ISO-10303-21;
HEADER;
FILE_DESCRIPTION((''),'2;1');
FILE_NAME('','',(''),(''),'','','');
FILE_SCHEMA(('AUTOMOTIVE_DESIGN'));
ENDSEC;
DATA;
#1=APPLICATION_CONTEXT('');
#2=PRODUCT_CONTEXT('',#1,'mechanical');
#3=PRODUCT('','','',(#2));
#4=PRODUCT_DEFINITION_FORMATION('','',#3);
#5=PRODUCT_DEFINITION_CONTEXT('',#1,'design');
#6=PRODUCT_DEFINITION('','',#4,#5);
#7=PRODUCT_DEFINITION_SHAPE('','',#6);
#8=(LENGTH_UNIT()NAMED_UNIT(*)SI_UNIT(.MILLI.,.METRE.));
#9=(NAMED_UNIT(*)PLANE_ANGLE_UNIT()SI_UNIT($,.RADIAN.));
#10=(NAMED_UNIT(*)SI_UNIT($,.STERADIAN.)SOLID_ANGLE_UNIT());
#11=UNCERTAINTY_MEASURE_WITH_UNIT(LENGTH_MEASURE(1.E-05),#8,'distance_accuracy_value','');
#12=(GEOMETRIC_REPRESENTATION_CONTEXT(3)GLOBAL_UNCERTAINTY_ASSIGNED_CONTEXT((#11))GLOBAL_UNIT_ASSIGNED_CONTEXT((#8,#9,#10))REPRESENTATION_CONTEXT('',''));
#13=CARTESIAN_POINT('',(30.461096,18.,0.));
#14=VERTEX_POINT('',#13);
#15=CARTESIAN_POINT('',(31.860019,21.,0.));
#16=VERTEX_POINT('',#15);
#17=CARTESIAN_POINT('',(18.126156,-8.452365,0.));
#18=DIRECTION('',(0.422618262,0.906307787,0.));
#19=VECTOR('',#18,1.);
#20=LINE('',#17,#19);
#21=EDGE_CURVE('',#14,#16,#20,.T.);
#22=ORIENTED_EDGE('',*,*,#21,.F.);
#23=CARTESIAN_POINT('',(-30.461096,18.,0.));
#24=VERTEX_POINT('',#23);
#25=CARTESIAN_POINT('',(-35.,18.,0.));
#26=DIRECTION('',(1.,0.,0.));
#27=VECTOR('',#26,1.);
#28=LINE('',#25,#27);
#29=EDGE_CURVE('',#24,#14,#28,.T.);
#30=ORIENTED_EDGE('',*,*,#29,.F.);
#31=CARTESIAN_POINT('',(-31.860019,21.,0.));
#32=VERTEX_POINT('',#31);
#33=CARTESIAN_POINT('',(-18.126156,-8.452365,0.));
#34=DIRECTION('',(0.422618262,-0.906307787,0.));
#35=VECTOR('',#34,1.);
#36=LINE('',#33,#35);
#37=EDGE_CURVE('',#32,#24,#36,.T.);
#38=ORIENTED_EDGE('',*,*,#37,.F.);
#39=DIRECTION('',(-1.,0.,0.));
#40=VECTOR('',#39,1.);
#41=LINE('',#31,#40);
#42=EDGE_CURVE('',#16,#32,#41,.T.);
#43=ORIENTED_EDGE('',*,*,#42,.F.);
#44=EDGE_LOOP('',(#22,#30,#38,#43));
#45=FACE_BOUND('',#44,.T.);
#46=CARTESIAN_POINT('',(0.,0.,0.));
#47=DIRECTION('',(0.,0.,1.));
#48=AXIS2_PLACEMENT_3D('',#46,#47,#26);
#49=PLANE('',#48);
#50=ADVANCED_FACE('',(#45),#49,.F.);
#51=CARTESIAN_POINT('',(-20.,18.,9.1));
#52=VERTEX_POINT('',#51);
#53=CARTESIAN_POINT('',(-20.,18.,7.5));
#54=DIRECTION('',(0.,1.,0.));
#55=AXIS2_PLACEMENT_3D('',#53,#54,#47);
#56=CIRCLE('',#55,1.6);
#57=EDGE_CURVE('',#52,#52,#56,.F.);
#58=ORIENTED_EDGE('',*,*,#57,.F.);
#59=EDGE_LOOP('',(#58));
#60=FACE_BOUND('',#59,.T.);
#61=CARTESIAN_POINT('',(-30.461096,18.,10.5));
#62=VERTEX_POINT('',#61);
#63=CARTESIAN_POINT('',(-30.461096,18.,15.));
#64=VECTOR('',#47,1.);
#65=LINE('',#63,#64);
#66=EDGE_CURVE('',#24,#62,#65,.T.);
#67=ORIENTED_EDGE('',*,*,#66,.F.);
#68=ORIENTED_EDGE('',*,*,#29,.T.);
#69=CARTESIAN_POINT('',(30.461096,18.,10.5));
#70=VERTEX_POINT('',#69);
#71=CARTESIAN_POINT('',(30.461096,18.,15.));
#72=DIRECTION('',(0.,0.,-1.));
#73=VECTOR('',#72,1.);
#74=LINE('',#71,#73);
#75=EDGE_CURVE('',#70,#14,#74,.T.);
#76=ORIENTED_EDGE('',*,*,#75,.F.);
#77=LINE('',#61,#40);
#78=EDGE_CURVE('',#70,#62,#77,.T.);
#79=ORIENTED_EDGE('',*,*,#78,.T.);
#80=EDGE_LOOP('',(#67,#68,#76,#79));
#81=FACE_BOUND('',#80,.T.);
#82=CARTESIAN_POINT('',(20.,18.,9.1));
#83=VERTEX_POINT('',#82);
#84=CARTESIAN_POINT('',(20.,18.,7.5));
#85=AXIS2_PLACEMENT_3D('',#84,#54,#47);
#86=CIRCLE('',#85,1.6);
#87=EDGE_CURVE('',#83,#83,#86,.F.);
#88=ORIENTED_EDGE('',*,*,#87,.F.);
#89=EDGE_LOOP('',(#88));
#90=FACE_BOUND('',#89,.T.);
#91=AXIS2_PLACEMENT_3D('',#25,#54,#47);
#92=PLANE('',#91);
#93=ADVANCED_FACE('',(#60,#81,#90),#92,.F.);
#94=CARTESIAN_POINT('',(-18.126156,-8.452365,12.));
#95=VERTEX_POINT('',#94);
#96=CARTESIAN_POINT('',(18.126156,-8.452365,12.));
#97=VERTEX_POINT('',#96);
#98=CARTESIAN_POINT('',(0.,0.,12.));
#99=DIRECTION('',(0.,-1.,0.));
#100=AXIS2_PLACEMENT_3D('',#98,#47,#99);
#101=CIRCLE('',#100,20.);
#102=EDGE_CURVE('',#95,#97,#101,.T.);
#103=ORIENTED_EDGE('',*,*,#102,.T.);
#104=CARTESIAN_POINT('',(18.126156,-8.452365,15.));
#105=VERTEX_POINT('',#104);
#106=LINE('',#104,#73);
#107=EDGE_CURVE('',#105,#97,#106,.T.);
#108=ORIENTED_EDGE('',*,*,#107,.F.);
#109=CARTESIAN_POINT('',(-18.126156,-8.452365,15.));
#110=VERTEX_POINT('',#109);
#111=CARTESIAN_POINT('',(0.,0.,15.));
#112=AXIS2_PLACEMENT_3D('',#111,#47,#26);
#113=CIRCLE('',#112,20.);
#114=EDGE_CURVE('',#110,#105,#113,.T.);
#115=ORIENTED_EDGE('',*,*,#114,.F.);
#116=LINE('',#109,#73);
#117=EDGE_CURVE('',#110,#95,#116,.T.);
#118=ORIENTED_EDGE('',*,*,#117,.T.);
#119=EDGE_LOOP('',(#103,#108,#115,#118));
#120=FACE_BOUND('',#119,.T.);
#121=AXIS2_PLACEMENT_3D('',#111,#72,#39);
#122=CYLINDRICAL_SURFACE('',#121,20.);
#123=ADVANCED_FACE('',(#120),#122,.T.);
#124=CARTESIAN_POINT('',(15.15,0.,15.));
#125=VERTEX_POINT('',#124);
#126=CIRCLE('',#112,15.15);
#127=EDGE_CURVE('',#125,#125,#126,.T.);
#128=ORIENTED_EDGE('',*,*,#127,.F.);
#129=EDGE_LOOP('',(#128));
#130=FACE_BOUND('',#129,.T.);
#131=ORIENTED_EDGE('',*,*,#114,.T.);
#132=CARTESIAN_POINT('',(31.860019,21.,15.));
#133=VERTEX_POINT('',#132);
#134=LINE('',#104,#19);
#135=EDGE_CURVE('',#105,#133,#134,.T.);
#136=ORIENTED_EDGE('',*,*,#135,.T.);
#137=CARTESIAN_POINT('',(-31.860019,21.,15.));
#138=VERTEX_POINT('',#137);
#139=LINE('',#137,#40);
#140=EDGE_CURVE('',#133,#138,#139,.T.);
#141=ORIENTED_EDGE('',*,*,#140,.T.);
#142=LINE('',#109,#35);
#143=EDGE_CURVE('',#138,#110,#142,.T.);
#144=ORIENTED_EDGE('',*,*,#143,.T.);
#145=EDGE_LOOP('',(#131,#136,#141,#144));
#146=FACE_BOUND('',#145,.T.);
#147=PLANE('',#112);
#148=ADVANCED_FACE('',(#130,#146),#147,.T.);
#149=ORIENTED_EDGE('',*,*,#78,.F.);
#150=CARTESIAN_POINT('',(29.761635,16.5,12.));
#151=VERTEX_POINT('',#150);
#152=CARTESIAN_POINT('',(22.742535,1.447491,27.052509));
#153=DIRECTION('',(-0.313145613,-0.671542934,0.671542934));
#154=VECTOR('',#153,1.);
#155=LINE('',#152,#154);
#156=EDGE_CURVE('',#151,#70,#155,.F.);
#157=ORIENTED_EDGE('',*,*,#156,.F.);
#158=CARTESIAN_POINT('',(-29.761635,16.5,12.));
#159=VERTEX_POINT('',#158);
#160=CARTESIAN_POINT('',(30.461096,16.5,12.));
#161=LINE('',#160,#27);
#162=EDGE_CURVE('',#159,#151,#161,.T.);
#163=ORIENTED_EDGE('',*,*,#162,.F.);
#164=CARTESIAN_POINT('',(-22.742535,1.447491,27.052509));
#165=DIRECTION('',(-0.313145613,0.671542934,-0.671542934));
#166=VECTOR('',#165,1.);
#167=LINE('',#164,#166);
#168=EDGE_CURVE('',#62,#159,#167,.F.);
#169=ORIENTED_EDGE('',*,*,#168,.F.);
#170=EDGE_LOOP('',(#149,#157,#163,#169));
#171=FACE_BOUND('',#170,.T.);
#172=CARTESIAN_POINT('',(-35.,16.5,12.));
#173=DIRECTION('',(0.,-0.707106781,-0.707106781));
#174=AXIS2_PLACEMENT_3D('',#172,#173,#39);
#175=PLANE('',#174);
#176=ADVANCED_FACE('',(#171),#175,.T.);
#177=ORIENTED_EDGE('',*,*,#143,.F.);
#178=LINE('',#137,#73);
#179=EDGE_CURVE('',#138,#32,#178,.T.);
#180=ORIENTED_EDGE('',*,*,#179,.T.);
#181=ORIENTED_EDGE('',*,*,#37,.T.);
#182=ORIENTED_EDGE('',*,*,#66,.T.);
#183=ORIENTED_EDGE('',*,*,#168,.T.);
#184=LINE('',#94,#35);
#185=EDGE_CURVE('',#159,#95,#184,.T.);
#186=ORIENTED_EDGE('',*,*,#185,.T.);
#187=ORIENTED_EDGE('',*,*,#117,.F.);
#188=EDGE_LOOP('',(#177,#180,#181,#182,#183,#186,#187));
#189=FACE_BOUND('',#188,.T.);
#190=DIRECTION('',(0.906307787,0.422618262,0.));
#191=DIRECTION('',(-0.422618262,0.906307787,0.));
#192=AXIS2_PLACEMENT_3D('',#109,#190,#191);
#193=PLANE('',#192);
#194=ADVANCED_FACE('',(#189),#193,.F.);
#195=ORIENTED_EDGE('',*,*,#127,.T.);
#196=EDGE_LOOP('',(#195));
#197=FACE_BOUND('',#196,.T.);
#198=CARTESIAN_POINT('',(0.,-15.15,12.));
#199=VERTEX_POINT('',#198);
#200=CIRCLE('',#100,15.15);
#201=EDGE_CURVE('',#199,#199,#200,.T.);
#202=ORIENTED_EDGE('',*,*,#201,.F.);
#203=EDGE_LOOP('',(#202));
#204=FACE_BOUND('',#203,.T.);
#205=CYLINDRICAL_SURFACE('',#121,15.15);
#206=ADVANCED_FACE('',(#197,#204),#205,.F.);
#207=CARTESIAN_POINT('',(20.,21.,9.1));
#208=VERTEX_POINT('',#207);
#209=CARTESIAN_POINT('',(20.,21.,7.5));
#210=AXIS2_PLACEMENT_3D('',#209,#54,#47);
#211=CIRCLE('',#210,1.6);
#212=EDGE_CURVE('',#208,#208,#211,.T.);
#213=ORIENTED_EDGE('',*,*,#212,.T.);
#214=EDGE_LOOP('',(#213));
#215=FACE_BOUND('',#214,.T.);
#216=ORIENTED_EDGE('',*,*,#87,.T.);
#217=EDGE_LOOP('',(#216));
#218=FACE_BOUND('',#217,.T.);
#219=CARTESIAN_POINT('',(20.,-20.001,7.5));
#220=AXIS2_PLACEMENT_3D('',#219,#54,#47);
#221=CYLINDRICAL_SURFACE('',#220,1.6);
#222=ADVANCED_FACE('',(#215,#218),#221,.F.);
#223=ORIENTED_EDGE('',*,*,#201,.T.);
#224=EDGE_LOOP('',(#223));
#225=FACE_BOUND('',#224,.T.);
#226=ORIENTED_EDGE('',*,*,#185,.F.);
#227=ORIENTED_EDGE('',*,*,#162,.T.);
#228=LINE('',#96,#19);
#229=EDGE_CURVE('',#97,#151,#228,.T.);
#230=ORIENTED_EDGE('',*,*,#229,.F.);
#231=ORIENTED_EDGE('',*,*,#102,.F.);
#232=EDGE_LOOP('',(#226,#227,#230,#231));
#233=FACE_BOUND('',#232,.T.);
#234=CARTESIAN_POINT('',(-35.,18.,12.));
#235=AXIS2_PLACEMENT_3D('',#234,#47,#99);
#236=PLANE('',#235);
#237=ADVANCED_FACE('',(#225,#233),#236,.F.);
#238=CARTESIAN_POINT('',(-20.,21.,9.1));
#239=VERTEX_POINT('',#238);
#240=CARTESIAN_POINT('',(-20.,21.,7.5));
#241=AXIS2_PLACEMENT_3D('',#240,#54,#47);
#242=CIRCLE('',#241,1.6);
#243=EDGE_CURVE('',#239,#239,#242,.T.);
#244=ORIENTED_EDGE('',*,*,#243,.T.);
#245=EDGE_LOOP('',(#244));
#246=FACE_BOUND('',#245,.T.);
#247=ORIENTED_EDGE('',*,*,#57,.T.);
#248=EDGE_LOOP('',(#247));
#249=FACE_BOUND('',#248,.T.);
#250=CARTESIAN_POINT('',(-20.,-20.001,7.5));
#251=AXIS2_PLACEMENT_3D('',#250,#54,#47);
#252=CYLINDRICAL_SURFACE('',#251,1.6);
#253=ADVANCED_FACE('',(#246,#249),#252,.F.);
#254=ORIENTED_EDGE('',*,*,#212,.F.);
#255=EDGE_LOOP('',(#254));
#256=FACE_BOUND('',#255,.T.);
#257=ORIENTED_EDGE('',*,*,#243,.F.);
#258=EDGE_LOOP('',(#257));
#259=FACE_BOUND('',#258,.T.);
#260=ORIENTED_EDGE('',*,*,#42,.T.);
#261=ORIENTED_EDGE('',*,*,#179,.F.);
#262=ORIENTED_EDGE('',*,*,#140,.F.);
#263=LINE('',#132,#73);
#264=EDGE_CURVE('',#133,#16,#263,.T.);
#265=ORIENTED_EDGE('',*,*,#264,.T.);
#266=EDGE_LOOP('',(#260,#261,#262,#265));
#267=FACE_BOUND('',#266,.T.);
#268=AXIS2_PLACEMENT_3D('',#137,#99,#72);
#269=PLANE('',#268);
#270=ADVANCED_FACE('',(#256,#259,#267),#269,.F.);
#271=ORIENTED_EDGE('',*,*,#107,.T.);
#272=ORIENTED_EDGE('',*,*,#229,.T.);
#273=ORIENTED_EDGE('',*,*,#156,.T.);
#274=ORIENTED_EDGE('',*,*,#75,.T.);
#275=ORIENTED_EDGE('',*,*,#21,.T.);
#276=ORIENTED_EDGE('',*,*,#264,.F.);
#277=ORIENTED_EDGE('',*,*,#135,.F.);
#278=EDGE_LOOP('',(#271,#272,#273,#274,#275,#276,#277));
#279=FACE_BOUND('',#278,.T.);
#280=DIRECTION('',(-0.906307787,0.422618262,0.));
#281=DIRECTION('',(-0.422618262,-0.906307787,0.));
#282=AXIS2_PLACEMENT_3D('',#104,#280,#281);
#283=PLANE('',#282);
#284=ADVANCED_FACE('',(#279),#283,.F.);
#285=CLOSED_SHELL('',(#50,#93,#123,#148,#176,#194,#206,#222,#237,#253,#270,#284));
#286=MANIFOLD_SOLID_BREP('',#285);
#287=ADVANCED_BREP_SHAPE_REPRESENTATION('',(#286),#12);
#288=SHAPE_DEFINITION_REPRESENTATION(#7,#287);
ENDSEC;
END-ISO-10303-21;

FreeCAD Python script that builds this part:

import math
import FreeCAD as App
import Part
import Sketcher

V = App.Vector
Q = App.Units.Quantity


def edges_at(feature, points):
    """Names of the edges that pass closest to the given points."""
    edges = feature.Shape.Edges
    near = lambda p: min(range(len(edges)), key=lambda i: edges[i].distToShape(Part.Vertex(*p))[0])
    return sorted({f"Edge{near(p) + 1}" for p in points})


def add_polygon(sketch, points):
    """Adds a closed chain of lines whose ends are joined by coincident constraints."""
    first, n = sketch.GeometryCount, len(points)
    for a, b in zip(points, points[1:] + points[:1]):
        sketch.addGeometry(Part.LineSegment(App.Vector(*a, 0), App.Vector(*b, 0)), False)
    for i in range(n):
        sketch.addConstraint(Sketcher.Constraint("Coincident", first + i, 2, first + (i + 1) % n, 1))

doc = App.newDocument("Part")
body = doc.addObject("PartDesign::Body", "Body")

sketch1 = doc.addObject("Sketcher::SketchObject", "Sketch")
body.addObject(sketch1)
sketch1.AttachmentSupport = (doc.XY_Plane, [""])
sketch1.MapMode = "FlatFace"
sketch1.addGeometry([
    Part.LineSegment(V(-31.860019, 21, 0), V(-18.126156, -8.452365, 0)),
    Part.ArcOfCircle(Part.Circle(V(0, 0, 0), V(0, 0, 1), 20), math.radians(-155), math.radians(-25)),
    Part.LineSegment(V(18.126156, -8.452365, 0), V(31.860019, 21, 0)),
    Part.LineSegment(V(31.860019, 21, 0), V(-31.860019, 21, 0)),
    Part.Circle(V(0, 0, 0), V(0, 0, 1), 15.15),
], False)
sketch1.addConstraint([
    Sketcher.Constraint("Tangent", 0, 2, 1, 1),
    Sketcher.Constraint("Tangent", 1, 2, 2, 1),
    Sketcher.Constraint("Coincident", 2, 2, 3, 1),
    Sketcher.Constraint("Coincident", 3, 2, 0, 1),
    Sketcher.Constraint("Horizontal", 3),
    Sketcher.Constraint("Coincident", 1, 3, -1, 1),
    Sketcher.Constraint("Coincident", 4, 3, -1, 1),
    Sketcher.Constraint("Horizontal", 0, 2, 1, 2),
    Sketcher.Constraint("Radius", 1, 20.0),
    Sketcher.Constraint("Diameter", 4, 30.3),
    Sketcher.Constraint("Angle", 0, Q("-65 deg")),
    Sketcher.Constraint("DistanceY", -1, 1, 2, 2, 21.0),
])
pad1 = doc.addObject("PartDesign::Pad", "Pad")
body.addObject(pad1)
pad1.Profile = sketch1
pad1.Length = 15

sketch2 = doc.addObject("Sketcher::SketchObject", "Sketch001")
body.addObject(sketch2)
sketch2.AttachmentSupport = (doc.YZ_Plane, [""])
sketch2.MapMode = "FlatFace"
add_polygon(sketch2, [(18, 12), (-20, 12), (-20, 0), (18, 0)])
sketch2.addConstraint([
    Sketcher.Constraint("Horizontal", 0),
    Sketcher.Constraint("Vertical", 1),
    Sketcher.Constraint("Horizontal", 2),
    Sketcher.Constraint("Vertical", 3),
    Sketcher.Constraint("PointOnObject", 1, 2, -1),
    Sketcher.Constraint("DistanceX", 0, 2, 0, 1, 38.0),
    Sketcher.Constraint("DistanceY", 1, 2, 1, 1, 12.0),
    Sketcher.Constraint("DistanceX", 0, 2, -1, 1, 20.0),
])
pocket1 = doc.addObject("PartDesign::Pocket", "Pocket")
body.addObject(pocket1)
pocket1.Profile = sketch2
pocket1.Length = 70
pocket1.Midplane = True

sketch3 = doc.addObject("Sketcher::SketchObject", "Sketch002")
body.addObject(sketch3)
sketch3.AttachmentSupport = (doc.XZ_Plane, [""])
sketch3.MapMode = "FlatFace"
sketch3.AttachmentOffset = App.Placement(V(0, 0, -21), App.Rotation())
sketch3.addGeometry(Part.Circle(V(-20, 7.5, 0), V(0, 0, 1), 1.6), False)
sketch3.addConstraint([
    Sketcher.Constraint("Diameter", 0, 3.2),
    Sketcher.Constraint("DistanceX", 0, 3, -1, 1, 20.0),
    Sketcher.Constraint("DistanceY", -1, 1, 0, 3, 7.5),
])
pocket2 = doc.addObject("PartDesign::Pocket", "Pocket001")
body.addObject(pocket2)
pocket2.Profile = sketch3
pocket2.Type = "UpToFirst"
pocket2.Reversed = True

sketch4 = doc.addObject("Sketcher::SketchObject", "Sketch003")
body.addObject(sketch4)
sketch4.AttachmentSupport = (doc.XZ_Plane, [""])
sketch4.MapMode = "FlatFace"
sketch4.AttachmentOffset = App.Placement(V(0, 0, -21), App.Rotation())
sketch4.addGeometry(Part.Circle(V(20, 7.5, 0), V(0, 0, 1), 1.6), False)
sketch4.addConstraint([
    Sketcher.Constraint("Diameter", 0, 3.2),
    Sketcher.Constraint("DistanceX", -1, 1, 0, 3, 20.0),
    Sketcher.Constraint("DistanceY", -1, 1, 0, 3, 7.5),
])
pocket3 = doc.addObject("PartDesign::Pocket", "Pocket002")
body.addObject(pocket3)
pocket3.Profile = sketch4
pocket3.Type = "UpToFirst"
pocket3.Reversed = True
doc.recompute()

chamfer = doc.addObject("PartDesign::Chamfer", "Chamfer")
body.addObject(chamfer)
chamfer.Base = (pocket3, edges_at(pocket3, [(0, 18, 12)]))
chamfer.Size = 1.5

doc.recompute()
